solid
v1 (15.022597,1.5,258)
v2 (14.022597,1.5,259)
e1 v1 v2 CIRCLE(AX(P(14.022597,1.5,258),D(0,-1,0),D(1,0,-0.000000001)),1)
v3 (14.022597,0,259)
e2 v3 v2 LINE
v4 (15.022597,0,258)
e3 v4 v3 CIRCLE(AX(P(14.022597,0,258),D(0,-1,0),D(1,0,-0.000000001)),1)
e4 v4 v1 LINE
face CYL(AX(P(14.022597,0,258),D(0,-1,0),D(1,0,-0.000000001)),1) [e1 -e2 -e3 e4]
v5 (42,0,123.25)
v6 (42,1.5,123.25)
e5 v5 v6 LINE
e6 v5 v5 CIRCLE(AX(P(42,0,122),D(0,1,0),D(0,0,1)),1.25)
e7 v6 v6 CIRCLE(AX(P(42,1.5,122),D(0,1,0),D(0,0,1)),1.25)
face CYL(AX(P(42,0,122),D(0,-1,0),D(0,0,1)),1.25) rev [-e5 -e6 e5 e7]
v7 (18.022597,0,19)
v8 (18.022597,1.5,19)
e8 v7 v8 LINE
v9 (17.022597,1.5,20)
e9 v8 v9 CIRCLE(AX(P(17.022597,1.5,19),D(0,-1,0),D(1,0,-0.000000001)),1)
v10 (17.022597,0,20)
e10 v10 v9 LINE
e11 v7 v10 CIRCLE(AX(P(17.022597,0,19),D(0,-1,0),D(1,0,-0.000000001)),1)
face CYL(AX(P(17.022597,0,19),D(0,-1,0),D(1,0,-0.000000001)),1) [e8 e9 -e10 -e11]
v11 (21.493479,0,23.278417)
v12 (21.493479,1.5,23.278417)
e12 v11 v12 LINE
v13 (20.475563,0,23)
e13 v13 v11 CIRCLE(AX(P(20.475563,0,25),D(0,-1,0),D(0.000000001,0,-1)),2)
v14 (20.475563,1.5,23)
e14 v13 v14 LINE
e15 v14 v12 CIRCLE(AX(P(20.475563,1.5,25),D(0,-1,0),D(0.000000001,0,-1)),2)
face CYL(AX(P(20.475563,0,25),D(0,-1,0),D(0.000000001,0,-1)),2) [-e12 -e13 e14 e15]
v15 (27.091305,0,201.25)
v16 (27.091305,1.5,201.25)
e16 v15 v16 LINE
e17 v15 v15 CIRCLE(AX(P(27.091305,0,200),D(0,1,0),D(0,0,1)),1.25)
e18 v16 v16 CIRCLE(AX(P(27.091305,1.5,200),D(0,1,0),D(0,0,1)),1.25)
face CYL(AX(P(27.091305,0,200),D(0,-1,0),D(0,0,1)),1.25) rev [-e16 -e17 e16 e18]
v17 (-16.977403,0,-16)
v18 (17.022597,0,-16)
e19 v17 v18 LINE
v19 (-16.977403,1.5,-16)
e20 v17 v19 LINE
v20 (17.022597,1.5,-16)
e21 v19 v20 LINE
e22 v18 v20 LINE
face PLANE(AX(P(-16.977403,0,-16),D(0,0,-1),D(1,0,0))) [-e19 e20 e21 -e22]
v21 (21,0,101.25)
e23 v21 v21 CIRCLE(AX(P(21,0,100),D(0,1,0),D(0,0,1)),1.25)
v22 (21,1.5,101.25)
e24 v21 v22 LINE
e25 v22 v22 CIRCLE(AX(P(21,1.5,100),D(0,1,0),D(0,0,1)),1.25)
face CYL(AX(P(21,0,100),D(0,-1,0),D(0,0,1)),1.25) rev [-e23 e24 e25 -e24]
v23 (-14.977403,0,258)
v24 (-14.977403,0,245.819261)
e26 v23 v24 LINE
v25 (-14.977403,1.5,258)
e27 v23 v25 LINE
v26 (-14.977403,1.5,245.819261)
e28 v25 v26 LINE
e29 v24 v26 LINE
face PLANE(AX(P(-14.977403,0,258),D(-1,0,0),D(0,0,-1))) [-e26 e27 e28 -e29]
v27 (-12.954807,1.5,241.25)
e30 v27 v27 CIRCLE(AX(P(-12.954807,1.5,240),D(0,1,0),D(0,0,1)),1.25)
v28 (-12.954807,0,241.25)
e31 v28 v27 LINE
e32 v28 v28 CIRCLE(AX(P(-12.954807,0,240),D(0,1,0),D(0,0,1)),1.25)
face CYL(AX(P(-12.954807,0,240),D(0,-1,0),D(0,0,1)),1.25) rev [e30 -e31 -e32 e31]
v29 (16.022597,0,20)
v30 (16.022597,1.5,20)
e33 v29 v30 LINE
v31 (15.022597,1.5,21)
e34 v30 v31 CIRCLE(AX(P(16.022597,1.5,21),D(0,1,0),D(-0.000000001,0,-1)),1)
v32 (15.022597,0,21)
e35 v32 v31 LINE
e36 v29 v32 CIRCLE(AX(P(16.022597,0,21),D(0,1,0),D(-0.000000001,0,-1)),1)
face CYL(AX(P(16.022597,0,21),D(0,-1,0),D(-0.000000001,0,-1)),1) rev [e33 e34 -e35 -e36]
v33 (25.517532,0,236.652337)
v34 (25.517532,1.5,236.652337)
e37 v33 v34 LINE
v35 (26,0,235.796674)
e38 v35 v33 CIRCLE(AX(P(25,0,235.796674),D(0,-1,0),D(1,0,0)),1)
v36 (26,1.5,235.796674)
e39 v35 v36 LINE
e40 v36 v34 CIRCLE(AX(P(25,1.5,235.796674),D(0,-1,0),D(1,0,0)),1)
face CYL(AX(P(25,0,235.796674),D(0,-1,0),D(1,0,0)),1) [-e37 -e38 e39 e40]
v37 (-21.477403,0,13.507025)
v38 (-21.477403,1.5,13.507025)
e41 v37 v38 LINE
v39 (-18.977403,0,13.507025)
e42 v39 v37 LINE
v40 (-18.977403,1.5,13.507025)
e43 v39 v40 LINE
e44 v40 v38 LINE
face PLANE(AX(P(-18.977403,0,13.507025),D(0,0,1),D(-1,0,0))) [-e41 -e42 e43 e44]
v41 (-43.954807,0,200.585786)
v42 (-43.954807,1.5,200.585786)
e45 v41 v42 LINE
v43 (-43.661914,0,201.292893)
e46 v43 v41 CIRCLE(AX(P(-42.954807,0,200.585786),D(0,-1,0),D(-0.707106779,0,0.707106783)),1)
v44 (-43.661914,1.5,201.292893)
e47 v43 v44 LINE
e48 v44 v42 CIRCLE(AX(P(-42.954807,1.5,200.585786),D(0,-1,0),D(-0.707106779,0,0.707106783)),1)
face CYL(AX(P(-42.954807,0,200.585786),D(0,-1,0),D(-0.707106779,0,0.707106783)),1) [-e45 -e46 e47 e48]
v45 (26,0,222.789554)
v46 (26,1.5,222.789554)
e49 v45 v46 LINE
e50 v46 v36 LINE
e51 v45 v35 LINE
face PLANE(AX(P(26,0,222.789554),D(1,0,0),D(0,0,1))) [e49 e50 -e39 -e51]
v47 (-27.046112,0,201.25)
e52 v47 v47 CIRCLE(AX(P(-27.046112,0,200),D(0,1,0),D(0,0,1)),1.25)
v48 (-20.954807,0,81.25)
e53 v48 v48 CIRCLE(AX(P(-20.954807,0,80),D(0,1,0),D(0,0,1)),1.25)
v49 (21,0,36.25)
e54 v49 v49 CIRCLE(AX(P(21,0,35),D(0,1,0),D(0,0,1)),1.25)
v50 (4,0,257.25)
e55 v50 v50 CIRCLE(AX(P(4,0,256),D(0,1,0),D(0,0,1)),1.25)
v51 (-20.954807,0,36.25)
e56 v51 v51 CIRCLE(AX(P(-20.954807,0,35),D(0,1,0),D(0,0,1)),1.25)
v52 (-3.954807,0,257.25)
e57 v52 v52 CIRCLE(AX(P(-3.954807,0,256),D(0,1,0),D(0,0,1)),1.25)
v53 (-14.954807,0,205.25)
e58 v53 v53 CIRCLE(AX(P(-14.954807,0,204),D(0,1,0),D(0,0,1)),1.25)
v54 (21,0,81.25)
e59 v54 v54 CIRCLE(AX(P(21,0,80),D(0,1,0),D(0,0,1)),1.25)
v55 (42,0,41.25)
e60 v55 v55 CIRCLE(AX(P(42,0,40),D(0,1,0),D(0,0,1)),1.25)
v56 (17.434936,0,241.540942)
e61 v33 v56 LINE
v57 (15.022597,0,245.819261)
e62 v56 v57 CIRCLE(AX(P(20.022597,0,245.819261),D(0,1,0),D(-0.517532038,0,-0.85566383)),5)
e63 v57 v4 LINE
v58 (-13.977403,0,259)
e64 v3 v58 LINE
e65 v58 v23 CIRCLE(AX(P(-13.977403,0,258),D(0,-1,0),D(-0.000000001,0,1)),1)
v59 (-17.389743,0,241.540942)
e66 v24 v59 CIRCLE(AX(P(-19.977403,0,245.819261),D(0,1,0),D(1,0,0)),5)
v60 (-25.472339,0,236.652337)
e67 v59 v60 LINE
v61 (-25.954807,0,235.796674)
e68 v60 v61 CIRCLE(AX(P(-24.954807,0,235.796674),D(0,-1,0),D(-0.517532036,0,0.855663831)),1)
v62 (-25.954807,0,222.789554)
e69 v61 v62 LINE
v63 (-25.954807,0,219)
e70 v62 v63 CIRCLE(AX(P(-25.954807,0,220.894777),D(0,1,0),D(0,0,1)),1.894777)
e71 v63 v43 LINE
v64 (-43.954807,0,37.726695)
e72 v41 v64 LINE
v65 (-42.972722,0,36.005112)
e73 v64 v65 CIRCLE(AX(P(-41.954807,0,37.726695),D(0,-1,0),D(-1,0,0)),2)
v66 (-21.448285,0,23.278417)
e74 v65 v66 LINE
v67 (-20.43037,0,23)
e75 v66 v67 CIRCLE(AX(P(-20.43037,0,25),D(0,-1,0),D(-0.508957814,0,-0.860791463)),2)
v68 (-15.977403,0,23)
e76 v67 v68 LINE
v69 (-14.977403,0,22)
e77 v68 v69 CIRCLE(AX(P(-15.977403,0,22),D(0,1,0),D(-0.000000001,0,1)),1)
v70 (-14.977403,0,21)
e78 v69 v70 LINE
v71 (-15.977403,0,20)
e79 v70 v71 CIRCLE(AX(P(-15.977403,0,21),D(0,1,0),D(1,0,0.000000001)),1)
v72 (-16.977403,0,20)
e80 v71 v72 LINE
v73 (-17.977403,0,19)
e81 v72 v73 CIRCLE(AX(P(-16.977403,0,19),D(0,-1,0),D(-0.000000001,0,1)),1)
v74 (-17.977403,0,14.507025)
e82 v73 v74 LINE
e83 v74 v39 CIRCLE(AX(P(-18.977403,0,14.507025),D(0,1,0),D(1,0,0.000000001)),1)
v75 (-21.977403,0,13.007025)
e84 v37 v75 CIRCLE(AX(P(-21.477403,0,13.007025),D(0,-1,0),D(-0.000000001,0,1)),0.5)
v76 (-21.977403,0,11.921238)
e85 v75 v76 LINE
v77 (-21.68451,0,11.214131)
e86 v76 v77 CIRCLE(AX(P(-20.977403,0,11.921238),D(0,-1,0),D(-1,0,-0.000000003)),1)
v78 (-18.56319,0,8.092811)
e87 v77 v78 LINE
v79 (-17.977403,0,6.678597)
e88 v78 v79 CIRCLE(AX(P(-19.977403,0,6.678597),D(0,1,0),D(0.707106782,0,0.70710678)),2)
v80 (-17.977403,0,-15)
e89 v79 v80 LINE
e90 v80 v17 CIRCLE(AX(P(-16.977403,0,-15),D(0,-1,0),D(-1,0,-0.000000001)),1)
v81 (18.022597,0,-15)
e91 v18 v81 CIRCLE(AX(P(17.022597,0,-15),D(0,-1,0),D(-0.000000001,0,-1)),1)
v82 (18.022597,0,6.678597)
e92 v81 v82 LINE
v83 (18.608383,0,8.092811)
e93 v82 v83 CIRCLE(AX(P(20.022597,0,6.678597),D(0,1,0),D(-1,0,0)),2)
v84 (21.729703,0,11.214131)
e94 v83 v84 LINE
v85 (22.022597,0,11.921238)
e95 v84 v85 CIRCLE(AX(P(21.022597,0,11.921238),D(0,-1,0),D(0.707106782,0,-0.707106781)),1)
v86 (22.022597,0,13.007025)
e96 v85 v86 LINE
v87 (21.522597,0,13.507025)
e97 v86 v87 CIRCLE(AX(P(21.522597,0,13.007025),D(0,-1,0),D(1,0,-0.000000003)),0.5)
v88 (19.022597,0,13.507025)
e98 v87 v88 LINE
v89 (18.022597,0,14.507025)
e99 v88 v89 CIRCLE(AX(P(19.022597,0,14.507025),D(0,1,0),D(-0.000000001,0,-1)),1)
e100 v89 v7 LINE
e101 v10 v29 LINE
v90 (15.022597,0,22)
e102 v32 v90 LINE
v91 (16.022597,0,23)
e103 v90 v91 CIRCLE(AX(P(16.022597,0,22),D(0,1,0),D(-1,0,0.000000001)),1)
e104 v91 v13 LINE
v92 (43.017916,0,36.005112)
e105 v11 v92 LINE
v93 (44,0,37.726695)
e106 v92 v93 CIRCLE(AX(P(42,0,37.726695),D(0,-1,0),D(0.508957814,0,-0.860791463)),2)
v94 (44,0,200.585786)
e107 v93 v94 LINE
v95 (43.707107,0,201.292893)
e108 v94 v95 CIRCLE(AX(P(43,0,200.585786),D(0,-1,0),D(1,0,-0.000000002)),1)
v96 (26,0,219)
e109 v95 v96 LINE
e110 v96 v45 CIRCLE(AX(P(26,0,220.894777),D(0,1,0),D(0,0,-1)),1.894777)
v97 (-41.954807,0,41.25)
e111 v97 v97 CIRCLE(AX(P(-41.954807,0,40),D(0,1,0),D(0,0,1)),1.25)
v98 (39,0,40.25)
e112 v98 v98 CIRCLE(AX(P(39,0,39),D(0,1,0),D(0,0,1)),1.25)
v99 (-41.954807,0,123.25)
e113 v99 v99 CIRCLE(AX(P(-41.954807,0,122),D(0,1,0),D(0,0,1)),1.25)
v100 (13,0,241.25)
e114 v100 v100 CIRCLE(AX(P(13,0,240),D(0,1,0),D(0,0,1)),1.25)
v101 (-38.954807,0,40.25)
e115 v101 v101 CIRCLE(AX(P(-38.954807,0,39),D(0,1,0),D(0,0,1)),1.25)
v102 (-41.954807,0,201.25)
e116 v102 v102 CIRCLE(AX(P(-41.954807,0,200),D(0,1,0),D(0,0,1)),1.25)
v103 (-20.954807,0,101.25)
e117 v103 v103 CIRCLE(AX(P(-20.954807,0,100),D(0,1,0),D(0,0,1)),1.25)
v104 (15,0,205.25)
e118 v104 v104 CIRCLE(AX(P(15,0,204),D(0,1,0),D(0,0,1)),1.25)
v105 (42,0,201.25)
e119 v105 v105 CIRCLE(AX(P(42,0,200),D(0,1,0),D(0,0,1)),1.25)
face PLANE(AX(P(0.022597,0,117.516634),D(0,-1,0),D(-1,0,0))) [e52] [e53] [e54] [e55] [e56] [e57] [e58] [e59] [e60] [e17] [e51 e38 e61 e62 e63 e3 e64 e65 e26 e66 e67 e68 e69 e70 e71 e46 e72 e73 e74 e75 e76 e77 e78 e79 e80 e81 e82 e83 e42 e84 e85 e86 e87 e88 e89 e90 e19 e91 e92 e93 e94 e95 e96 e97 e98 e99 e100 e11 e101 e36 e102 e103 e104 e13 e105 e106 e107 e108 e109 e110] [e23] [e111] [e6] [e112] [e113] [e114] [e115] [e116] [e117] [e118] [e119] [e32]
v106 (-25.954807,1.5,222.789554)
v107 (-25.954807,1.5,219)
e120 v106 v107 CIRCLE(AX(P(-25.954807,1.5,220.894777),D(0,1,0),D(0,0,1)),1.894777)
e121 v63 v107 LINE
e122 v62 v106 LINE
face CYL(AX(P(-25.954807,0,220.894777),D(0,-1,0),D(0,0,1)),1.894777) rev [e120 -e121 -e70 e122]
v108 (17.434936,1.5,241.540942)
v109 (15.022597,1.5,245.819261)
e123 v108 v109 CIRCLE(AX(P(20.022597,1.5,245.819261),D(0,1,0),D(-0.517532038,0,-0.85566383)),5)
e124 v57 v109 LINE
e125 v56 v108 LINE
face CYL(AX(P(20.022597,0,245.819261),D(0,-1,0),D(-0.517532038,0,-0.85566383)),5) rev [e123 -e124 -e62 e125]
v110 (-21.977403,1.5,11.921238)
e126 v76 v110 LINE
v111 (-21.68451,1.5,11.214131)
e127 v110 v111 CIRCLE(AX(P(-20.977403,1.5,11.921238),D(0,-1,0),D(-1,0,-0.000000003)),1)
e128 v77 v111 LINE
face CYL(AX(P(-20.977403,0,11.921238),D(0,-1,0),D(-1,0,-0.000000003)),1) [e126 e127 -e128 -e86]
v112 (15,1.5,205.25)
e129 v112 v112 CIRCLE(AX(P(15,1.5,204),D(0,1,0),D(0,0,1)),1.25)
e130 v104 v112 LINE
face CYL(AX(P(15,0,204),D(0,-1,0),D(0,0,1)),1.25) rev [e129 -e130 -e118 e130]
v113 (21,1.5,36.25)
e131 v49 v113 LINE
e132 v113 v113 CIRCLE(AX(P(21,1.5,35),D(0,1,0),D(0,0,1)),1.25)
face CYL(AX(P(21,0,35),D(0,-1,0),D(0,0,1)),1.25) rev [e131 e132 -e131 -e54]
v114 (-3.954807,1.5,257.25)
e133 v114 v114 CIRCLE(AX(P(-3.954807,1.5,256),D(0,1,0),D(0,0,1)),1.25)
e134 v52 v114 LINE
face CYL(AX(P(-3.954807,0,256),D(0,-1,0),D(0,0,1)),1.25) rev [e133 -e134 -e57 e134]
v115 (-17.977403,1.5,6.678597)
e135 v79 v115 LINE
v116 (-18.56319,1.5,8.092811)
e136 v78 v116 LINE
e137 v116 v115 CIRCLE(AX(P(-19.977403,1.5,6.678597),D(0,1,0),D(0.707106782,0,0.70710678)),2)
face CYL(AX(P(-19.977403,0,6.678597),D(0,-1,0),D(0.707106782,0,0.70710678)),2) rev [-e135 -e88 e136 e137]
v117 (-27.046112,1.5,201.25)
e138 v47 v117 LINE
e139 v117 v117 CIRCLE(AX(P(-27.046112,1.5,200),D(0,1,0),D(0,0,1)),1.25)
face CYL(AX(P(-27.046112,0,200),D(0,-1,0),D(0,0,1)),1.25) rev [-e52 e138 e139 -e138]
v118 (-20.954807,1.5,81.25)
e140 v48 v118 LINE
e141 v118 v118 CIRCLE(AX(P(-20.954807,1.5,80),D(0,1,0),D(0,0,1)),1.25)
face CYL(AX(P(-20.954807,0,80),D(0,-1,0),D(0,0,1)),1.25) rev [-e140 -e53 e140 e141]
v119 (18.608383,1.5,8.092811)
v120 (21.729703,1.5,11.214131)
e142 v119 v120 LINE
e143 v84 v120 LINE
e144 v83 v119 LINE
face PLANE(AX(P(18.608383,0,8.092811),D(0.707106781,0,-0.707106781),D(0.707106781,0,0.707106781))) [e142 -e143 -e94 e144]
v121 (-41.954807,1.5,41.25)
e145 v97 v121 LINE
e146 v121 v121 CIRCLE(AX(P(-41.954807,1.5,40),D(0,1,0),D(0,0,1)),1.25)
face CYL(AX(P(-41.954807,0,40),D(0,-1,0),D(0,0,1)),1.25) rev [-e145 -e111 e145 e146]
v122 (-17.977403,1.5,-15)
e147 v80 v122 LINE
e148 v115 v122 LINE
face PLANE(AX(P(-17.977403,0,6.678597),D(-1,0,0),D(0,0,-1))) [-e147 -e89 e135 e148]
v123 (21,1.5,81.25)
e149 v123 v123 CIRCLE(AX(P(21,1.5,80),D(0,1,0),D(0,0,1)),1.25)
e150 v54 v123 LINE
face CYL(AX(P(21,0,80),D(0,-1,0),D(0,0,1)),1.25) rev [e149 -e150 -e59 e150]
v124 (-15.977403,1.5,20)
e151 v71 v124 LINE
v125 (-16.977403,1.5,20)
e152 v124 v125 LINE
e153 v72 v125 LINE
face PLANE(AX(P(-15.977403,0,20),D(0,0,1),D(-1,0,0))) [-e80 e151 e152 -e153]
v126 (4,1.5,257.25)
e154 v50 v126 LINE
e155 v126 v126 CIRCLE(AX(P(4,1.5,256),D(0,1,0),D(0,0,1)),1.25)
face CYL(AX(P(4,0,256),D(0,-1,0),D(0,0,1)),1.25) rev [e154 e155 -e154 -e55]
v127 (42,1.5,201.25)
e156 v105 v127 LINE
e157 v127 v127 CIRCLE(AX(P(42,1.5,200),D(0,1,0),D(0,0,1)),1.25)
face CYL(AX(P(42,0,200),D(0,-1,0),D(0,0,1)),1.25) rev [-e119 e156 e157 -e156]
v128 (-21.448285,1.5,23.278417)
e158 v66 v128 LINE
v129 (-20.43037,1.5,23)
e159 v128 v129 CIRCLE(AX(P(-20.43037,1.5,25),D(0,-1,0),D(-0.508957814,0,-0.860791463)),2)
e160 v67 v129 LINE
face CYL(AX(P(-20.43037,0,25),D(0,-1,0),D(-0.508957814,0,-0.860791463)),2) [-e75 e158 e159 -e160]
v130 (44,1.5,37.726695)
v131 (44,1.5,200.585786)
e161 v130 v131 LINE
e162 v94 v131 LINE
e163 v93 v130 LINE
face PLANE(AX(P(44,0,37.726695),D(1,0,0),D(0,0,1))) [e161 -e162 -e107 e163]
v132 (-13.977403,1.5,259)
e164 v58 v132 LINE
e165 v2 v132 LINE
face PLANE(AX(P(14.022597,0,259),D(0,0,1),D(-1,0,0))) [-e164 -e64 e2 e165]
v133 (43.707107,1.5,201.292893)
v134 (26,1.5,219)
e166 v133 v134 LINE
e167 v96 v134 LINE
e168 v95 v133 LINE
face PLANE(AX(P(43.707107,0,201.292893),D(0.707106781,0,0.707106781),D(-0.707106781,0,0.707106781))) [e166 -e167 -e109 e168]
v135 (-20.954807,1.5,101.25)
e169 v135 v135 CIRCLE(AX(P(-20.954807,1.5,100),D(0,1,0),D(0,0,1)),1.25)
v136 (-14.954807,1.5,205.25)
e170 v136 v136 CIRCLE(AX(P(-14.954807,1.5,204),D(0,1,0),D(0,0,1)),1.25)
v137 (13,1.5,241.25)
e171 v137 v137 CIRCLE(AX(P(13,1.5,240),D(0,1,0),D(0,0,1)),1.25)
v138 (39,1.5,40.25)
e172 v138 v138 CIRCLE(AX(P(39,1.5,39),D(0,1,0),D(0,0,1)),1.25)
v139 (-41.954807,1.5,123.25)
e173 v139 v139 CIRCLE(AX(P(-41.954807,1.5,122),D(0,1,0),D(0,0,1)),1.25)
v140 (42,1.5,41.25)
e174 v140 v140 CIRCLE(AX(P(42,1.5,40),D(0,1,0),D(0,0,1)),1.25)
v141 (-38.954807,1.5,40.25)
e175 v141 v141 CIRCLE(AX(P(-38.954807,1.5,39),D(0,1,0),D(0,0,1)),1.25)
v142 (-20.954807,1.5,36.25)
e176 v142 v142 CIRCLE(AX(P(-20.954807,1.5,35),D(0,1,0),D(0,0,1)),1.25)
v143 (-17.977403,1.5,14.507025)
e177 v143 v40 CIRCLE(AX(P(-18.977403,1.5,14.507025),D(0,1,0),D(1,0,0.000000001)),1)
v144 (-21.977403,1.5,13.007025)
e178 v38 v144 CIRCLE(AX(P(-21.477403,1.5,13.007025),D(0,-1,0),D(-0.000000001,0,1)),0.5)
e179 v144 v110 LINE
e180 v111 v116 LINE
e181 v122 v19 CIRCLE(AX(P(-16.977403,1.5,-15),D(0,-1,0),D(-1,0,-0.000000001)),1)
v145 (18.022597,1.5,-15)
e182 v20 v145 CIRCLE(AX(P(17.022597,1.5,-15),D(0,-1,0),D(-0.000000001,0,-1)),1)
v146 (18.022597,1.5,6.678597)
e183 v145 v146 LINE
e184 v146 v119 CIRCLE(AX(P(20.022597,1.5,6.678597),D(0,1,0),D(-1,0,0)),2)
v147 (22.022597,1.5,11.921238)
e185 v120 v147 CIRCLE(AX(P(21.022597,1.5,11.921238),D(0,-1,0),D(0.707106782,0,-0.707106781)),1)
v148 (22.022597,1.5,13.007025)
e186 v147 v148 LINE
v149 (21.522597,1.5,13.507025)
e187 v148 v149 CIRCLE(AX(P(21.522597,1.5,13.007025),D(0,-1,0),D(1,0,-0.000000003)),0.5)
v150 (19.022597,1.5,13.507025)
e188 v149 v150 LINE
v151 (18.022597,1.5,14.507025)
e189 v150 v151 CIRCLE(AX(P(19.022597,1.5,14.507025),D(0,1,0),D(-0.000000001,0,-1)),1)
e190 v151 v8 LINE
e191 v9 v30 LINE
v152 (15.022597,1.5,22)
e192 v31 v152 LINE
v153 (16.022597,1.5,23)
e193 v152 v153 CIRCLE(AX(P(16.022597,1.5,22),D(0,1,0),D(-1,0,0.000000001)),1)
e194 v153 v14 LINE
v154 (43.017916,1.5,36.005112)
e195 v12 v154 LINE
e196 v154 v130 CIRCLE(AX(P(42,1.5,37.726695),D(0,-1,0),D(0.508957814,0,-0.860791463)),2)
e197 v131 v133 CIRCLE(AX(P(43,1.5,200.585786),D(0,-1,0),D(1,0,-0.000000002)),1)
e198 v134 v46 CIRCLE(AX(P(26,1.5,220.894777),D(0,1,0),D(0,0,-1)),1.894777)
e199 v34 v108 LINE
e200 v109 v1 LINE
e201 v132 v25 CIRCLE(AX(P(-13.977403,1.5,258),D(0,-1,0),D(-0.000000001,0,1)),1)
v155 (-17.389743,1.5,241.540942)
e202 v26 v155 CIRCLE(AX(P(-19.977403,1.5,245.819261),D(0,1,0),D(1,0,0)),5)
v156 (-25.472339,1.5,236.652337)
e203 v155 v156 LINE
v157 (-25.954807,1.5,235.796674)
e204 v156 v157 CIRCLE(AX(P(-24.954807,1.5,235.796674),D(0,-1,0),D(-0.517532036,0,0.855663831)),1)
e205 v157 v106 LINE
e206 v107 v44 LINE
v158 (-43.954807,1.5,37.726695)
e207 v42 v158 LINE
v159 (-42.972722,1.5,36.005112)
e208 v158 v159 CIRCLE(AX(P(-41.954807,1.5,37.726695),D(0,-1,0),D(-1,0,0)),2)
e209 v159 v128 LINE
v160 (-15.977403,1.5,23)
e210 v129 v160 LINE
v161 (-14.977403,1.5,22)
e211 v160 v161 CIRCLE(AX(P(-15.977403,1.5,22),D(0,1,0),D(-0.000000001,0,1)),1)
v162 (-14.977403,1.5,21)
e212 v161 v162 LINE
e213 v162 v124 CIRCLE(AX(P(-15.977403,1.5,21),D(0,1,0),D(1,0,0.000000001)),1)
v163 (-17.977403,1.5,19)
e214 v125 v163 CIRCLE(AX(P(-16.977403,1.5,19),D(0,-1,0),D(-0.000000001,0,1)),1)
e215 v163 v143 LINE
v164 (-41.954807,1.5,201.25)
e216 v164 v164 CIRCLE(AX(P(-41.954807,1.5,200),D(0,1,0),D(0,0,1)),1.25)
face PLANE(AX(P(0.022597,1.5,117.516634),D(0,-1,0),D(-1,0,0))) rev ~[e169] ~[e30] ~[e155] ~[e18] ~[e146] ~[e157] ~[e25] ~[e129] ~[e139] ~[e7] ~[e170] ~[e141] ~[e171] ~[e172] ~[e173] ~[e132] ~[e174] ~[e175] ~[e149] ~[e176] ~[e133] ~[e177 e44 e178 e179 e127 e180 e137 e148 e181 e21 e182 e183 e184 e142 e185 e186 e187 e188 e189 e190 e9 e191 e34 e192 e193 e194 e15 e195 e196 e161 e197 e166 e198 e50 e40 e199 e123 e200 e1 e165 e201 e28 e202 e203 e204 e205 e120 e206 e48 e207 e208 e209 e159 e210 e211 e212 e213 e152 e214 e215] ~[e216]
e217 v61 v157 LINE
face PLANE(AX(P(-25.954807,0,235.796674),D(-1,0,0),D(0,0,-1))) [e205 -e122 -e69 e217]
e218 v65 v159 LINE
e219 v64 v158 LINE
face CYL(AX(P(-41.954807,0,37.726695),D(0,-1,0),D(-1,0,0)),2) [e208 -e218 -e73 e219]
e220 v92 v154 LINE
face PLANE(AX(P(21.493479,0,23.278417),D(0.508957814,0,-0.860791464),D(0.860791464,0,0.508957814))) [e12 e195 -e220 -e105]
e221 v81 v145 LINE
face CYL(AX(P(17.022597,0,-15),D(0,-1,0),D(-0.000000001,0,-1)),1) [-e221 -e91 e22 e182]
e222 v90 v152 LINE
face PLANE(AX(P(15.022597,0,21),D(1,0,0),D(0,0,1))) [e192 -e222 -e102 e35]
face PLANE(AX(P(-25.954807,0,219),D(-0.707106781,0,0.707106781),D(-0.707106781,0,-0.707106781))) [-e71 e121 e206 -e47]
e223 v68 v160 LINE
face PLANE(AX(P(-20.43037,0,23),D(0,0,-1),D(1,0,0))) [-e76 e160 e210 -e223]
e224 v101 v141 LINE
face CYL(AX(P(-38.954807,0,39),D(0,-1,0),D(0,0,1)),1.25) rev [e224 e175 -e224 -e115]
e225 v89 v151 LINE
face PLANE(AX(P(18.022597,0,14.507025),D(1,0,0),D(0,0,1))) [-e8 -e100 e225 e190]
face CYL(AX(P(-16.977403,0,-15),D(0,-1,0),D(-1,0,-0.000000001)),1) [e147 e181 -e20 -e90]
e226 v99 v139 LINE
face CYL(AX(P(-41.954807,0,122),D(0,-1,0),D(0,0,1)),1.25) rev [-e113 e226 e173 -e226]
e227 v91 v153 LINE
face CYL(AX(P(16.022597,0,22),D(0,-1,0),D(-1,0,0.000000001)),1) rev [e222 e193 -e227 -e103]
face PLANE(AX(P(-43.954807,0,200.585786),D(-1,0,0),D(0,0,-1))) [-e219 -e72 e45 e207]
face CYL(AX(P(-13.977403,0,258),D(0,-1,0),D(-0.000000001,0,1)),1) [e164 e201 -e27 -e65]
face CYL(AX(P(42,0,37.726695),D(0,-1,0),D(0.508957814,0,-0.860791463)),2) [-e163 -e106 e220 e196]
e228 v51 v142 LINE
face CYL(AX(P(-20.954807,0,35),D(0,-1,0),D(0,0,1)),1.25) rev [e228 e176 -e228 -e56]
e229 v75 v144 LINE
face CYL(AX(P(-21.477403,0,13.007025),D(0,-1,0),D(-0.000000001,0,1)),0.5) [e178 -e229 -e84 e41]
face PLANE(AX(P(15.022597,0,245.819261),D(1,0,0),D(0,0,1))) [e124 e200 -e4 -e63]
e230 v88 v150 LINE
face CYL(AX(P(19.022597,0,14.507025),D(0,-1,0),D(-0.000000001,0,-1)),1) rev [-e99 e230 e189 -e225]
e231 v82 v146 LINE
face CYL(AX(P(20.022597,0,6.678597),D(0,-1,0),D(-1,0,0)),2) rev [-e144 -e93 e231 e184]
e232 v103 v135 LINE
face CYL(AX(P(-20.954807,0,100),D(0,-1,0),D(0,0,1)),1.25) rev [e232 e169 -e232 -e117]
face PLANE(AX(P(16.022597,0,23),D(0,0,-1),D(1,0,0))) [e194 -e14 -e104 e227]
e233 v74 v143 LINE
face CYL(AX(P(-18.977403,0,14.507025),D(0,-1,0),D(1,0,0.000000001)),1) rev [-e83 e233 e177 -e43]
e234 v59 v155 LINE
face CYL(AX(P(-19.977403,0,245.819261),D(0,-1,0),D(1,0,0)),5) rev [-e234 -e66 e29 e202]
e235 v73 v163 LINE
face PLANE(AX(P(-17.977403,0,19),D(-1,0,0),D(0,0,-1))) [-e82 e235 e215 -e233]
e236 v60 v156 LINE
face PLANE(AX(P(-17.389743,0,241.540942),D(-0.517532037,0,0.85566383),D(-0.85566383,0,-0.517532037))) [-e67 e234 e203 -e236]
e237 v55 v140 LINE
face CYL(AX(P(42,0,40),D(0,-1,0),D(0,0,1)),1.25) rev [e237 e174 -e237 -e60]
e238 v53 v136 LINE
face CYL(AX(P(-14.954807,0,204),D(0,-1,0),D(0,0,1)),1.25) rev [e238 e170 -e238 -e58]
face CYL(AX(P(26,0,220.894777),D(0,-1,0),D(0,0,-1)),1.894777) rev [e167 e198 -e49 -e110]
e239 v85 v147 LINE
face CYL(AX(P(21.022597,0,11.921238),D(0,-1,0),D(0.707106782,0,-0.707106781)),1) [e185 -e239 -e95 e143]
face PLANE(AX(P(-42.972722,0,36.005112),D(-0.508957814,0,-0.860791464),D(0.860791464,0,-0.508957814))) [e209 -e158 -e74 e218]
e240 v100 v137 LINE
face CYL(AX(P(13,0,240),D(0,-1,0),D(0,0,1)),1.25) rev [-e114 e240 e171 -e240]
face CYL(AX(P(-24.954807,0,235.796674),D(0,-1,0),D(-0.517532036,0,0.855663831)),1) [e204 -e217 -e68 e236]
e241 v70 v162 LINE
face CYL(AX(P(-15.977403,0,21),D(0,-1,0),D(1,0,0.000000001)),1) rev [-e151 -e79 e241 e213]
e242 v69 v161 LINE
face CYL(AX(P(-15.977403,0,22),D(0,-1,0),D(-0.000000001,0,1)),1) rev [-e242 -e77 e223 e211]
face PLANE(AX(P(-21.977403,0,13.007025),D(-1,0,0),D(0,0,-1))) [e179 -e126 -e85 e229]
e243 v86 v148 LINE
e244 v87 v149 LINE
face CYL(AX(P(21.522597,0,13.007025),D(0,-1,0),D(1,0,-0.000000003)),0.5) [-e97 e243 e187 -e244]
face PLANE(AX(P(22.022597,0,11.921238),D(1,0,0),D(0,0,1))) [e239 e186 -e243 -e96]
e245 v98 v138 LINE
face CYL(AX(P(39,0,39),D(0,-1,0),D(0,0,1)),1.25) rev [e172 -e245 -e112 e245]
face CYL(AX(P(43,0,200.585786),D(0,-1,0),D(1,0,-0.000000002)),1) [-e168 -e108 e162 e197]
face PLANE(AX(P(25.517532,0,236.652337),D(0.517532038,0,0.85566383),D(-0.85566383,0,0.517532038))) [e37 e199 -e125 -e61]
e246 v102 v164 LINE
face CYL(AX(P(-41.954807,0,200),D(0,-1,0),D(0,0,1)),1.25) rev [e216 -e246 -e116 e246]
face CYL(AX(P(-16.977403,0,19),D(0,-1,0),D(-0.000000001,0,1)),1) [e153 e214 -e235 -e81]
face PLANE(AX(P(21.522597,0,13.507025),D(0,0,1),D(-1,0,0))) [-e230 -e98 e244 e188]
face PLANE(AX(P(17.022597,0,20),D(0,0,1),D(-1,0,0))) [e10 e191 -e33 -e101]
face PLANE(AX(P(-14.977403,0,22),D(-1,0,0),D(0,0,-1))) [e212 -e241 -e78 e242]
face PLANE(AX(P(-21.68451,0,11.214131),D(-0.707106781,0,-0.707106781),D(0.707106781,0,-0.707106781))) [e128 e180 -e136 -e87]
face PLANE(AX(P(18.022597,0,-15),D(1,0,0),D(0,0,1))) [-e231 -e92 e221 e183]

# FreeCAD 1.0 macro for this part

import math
import FreeCAD as App
import Part
import Sketcher

doc = App.newDocument("Part")
params = doc.addObject("Spreadsheet::Sheet", "Params")
for row, (alias, value) in enumerate([
    ("sketch1_radius", "2 mm"),
    ("sketch1_radius2", "1 mm"),
    ("sketch1_radius3", "5 mm"),
    ("sketch1_diameter", "2.5 mm"),
    ("sketch1_radius4", "0.5 mm"),
    ("pad1_length", "1.5 mm"),
], start=1):
    params.set(f"A{row}", alias)
    params.set(f"B{row}", "=" + value)
    params.setAlias(f"B{row}", alias)

body = doc.addObject("PartDesign::Body", "Body")

# Sketch on XZ plane
sketch1 = body.newObject("Sketcher::SketchObject", "Sketch")
sketch1.AttachmentSupport = (doc.getObject("XZ_Plane"), [""])
sketch1.MapMode = "FlatFace"
sketch1.addGeometry(Part.LineSegment(App.Vector(44, 200.59, 0), App.Vector(44, 37.73, 0)), False)
sketch1.addGeometry(Part.ArcOfCircle(Part.Circle(App.Vector(42, 37.73, 0), App.Vector(0, 0, 1), 2), math.radians(-59), math.radians(0)), False)
sketch1.addGeometry(Part.LineSegment(App.Vector(43.02, 36.01, 0), App.Vector(21.49, 23.28, 0)), False)
sketch1.addGeometry(Part.ArcOfCircle(Part.Circle(App.Vector(20.48, 25, 0), App.Vector(0, 0, 1), 2), math.radians(-90), math.radians(-59)), False)
sketch1.addGeometry(Part.LineSegment(App.Vector(20.48, 23, 0), App.Vector(16.02, 23, 0)), False)
sketch1.addGeometry(Part.ArcOfCircle(Part.Circle(App.Vector(16.02, 22, 0), App.Vector(0, 0, 1), 1), math.radians(90), math.radians(180)), False)
sketch1.addGeometry(Part.LineSegment(App.Vector(15.02, 22, 0), App.Vector(15.02, 21, 0)), False)
sketch1.addGeometry(Part.ArcOfCircle(Part.Circle(App.Vector(16.02, 21, 0), App.Vector(0, 0, 1), 1), math.radians(-180), math.radians(-90)), False)
sketch1.addGeometry(Part.LineSegment(App.Vector(16.02, 20, 0), App.Vector(17.02, 20, 0)), False)
sketch1.addGeometry(Part.ArcOfCircle(Part.Circle(App.Vector(17.02, 19, 0), App.Vector(0, 0, 1), 1), math.radians(0), math.radians(90)), False)
sketch1.addGeometry(Part.LineSegment(App.Vector(18.02, 19, 0), App.Vector(18.02, 14.51, 0)), False)
sketch1.addGeometry(Part.ArcOfCircle(Part.Circle(App.Vector(19.02, 14.51, 0), App.Vector(0, 0, 1), 1), math.radians(-180), math.radians(-90)), False)
sketch1.addGeometry(Part.LineSegment(App.Vector(19.02, 13.51, 0), App.Vector(21.52, 13.51, 0)), False)
sketch1.addGeometry(Part.ArcOfCircle(Part.Circle(App.Vector(21.52, 13.01, 0), App.Vector(0, 0, 1), 0.5), math.radians(0), math.radians(90)), False)
sketch1.addGeometry(Part.LineSegment(App.Vector(22.02, 13.01, 0), App.Vector(22.02, 11.92, 0)), False)
sketch1.addGeometry(Part.ArcOfCircle(Part.Circle(App.Vector(21.02, 11.92, 0), App.Vector(0, 0, 1), 1), math.radians(-45), math.radians(0)), False)
sketch1.addGeometry(Part.LineSegment(App.Vector(21.73, 11.21, 0), App.Vector(18.61, 8.09, 0)), False)
sketch1.addGeometry(Part.ArcOfCircle(Part.Circle(App.Vector(20.02, 6.68, 0), App.Vector(0, 0, 1), 2), math.radians(135), math.radians(180)), False)
sketch1.addGeometry(Part.LineSegment(App.Vector(18.02, 6.68, 0), App.Vector(18.02, -15, 0)), False)
sketch1.addGeometry(Part.ArcOfCircle(Part.Circle(App.Vector(17.02, -15, 0), App.Vector(0, 0, 1), 1), math.radians(-90), math.radians(0)), False)
sketch1.addGeometry(Part.LineSegment(App.Vector(17.02, -16, 0), App.Vector(-16.98, -16, 0)), False)
sketch1.addGeometry(Part.ArcOfCircle(Part.Circle(App.Vector(-16.98, -15, 0), App.Vector(0, 0, 1), 1), math.radians(-180), math.radians(-90)), False)
sketch1.addGeometry(Part.LineSegment(App.Vector(-17.98, -15, 0), App.Vector(-17.98, 6.68, 0)), False)
sketch1.addGeometry(Part.ArcOfCircle(Part.Circle(App.Vector(-19.98, 6.68, 0), App.Vector(0, 0, 1), 2), math.radians(0), math.radians(45)), False)
sketch1.addGeometry(Part.LineSegment(App.Vector(-18.56, 8.09, 0), App.Vector(-21.68, 11.21, 0)), False)
sketch1.addGeometry(Part.ArcOfCircle(Part.Circle(App.Vector(-20.98, 11.92, 0), App.Vector(0, 0, 1), 1), math.radians(-180), math.radians(-135)), False)
sketch1.addGeometry(Part.LineSegment(App.Vector(-21.98, 11.92, 0), App.Vector(-21.98, 13.01, 0)), False)
sketch1.addGeometry(Part.ArcOfCircle(Part.Circle(App.Vector(-21.48, 13.01, 0), App.Vector(0, 0, 1), 0.5), math.radians(90), math.radians(180)), False)
sketch1.addGeometry(Part.LineSegment(App.Vector(-21.48, 13.51, 0), App.Vector(-18.98, 13.51, 0)), False)
sketch1.addGeometry(Part.ArcOfCircle(Part.Circle(App.Vector(-18.98, 14.51, 0), App.Vector(0, 0, 1), 1), math.radians(-90), math.radians(0)), False)
sketch1.addGeometry(Part.LineSegment(App.Vector(-17.98, 14.51, 0), App.Vector(-17.98, 19, 0)), False)
sketch1.addGeometry(Part.ArcOfCircle(Part.Circle(App.Vector(-16.98, 19, 0), App.Vector(0, 0, 1), 1), math.radians(90), math.radians(180)), False)
sketch1.addGeometry(Part.LineSegment(App.Vector(-16.98, 20, 0), App.Vector(-15.98, 20, 0)), False)
sketch1.addGeometry(Part.ArcOfCircle(Part.Circle(App.Vector(-15.98, 21, 0), App.Vector(0, 0, 1), 1), math.radians(-90), math.radians(0)), False)
sketch1.addGeometry(Part.LineSegment(App.Vector(-14.98, 21, 0), App.Vector(-14.98, 22, 0)), False)
sketch1.addGeometry(Part.ArcOfCircle(Part.Circle(App.Vector(-15.98, 22, 0), App.Vector(0, 0, 1), 1), math.radians(0), math.radians(90)), False)
sketch1.addGeometry(Part.LineSegment(App.Vector(-15.98, 23, 0), App.Vector(-20.43, 23, 0)), False)
sketch1.addGeometry(Part.ArcOfCircle(Part.Circle(App.Vector(-20.43, 25, 0), App.Vector(0, 0, 1), 2), math.radians(-121), math.radians(-90)), False)
sketch1.addGeometry(Part.LineSegment(App.Vector(-21.45, 23.28, 0), App.Vector(-42.97, 36.01, 0)), False)
sketch1.addGeometry(Part.ArcOfCircle(Part.Circle(App.Vector(-41.95, 37.73, 0), App.Vector(0, 0, 1), 2), math.radians(-180), math.radians(-121)), False)
sketch1.addGeometry(Part.LineSegment(App.Vector(-43.95, 37.73, 0), App.Vector(-43.95, 200.59, 0)), False)
sketch1.addGeometry(Part.ArcOfCircle(Part.Circle(App.Vector(-42.95, 200.59, 0), App.Vector(0, 0, 1), 1), math.radians(135), math.radians(180)), False)
sketch1.addGeometry(Part.LineSegment(App.Vector(-43.66, 201.29, 0), App.Vector(-25.95, 219, 0)), False)
sketch1.addGeometry(Part.ArcOfCircle(Part.Circle(App.Vector(-25.95, 220.89, 0), App.Vector(0, 0, 1), 1.89), math.radians(-90), math.radians(90)), False)
sketch1.addGeometry(Part.LineSegment(App.Vector(-25.95, 222.79, 0), App.Vector(-25.95, 235.8, 0)), False)
sketch1.addGeometry(Part.ArcOfCircle(Part.Circle(App.Vector(-24.95, 235.8, 0), App.Vector(0, 0, 1), 1), math.radians(121), math.radians(180)), False)
sketch1.addGeometry(Part.LineSegment(App.Vector(-25.47, 236.65, 0), App.Vector(-17.39, 241.54, 0)), False)
sketch1.addGeometry(Part.ArcOfCircle(Part.Circle(App.Vector(-19.98, 245.82, 0), App.Vector(0, 0, 1), 5), math.radians(-59), math.radians(0)), False)
sketch1.addGeometry(Part.LineSegment(App.Vector(-14.98, 245.82, 0), App.Vector(-14.98, 258, 0)), False)
sketch1.addGeometry(Part.ArcOfCircle(Part.Circle(App.Vector(-13.98, 258, 0), App.Vector(0, 0, 1), 1), math.radians(90), math.radians(180)), False)
sketch1.addGeometry(Part.LineSegment(App.Vector(-13.98, 259, 0), App.Vector(14.02, 259, 0)), False)
sketch1.addGeometry(Part.ArcOfCircle(Part.Circle(App.Vector(14.02, 258, 0), App.Vector(0, 0, 1), 1), math.radians(0), math.radians(90)), False)
sketch1.addGeometry(Part.LineSegment(App.Vector(15.02, 258, 0), App.Vector(15.02, 245.82, 0)), False)
sketch1.addGeometry(Part.ArcOfCircle(Part.Circle(App.Vector(20.02, 245.82, 0), App.Vector(0, 0, 1), 5), math.radians(-180), math.radians(-121)), False)
sketch1.addGeometry(Part.LineSegment(App.Vector(17.43, 241.54, 0), App.Vector(25.52, 236.65, 0)), False)
sketch1.addGeometry(Part.ArcOfCircle(Part.Circle(App.Vector(25, 235.8, 0), App.Vector(0, 0, 1), 1), math.radians(0), math.radians(59)), False)
sketch1.addGeometry(Part.LineSegment(App.Vector(26, 235.8, 0), App.Vector(26, 222.79, 0)), False)
sketch1.addGeometry(Part.ArcOfCircle(Part.Circle(App.Vector(26, 220.89, 0), App.Vector(0, 0, 1), 1.89), math.radians(90), math.radians(270)), False)
sketch1.addGeometry(Part.LineSegment(App.Vector(26, 219, 0), App.Vector(43.71, 201.29, 0)), False)
sketch1.addGeometry(Part.ArcOfCircle(Part.Circle(App.Vector(43, 200.59, 0), App.Vector(0, 0, 1), 1), math.radians(0), math.radians(45)), False)
sketch1.addGeometry(Part.Circle(App.Vector(13, 240, 0), App.Vector(0, 0, 1), 1.25), False)
sketch1.addGeometry(Part.Circle(App.Vector(4, 256, 0), App.Vector(0, 0, 1), 1.25), False)
sketch1.addGeometry(Part.Circle(App.Vector(15, 204, 0), App.Vector(0, 0, 1), 1.25), False)
sketch1.addGeometry(Part.Circle(App.Vector(42, 200, 0), App.Vector(0, 0, 1), 1.25), False)
sketch1.addGeometry(Part.Circle(App.Vector(27.09, 200, 0), App.Vector(0, 0, 1), 1.25), False)
sketch1.addGeometry(Part.Circle(App.Vector(-3.95, 256, 0), App.Vector(0, 0, 1), 1.25), False)
sketch1.addGeometry(Part.Circle(App.Vector(-12.95, 240, 0), App.Vector(0, 0, 1), 1.25), False)
sketch1.addGeometry(Part.Circle(App.Vector(-14.95, 204, 0), App.Vector(0, 0, 1), 1.25), False)
sketch1.addGeometry(Part.Circle(App.Vector(-27.05, 200, 0), App.Vector(0, 0, 1), 1.25), False)
sketch1.addGeometry(Part.Circle(App.Vector(-41.95, 200, 0), App.Vector(0, 0, 1), 1.25), False)
sketch1.addGeometry(Part.Circle(App.Vector(42, 122, 0), App.Vector(0, 0, 1), 1.25), False)
sketch1.addGeometry(Part.Circle(App.Vector(21, 100, 0), App.Vector(0, 0, 1), 1.25), False)
sketch1.addGeometry(Part.Circle(App.Vector(42, 40, 0), App.Vector(0, 0, 1), 1.25), False)
sketch1.addGeometry(Part.Circle(App.Vector(39, 39, 0), App.Vector(0, 0, 1), 1.25), False)
sketch1.addGeometry(Part.Circle(App.Vector(21, 80, 0), App.Vector(0, 0, 1), 1.25), False)
sketch1.addGeometry(Part.Circle(App.Vector(21, 35, 0), App.Vector(0, 0, 1), 1.25), False)
sketch1.addGeometry(Part.Circle(App.Vector(-20.95, 100, 0), App.Vector(0, 0, 1), 1.25), False)
sketch1.addGeometry(Part.Circle(App.Vector(-41.95, 122, 0), App.Vector(0, 0, 1), 1.25), False)
sketch1.addGeometry(Part.Circle(App.Vector(-20.95, 80, 0), App.Vector(0, 0, 1), 1.25), False)
sketch1.addGeometry(Part.Circle(App.Vector(-20.95, 35, 0), App.Vector(0, 0, 1), 1.25), False)
sketch1.addGeometry(Part.Circle(App.Vector(-38.95, 39, 0), App.Vector(0, 0, 1), 1.25), False)
sketch1.addGeometry(Part.Circle(App.Vector(-41.95, 40, 0), App.Vector(0, 0, 1), 1.25), False)
sketch1.addConstraint(Sketcher.Constraint("Tangent", 0, 2, 1, 2))
sketch1.addConstraint(Sketcher.Constraint("Tangent", 1, 1, 2, 1))
sketch1.addConstraint(Sketcher.Constraint("Tangent", 2, 2, 3, 2))
sketch1.addConstraint(Sketcher.Constraint("Tangent", 3, 1, 4, 1))
sketch1.addConstraint(Sketcher.Constraint("Tangent", 4, 2, 5, 1))
sketch1.addConstraint(Sketcher.Constraint("Tangent", 5, 2, 6, 1))
sketch1.addConstraint(Sketcher.Constraint("Tangent", 6, 2, 7, 1))
sketch1.addConstraint(Sketcher.Constraint("Tangent", 7, 2, 8, 1))
sketch1.addConstraint(Sketcher.Constraint("Tangent", 8, 2, 9, 2))
sketch1.addConstraint(Sketcher.Constraint("Tangent", 9, 1, 10, 1))
sketch1.addConstraint(Sketcher.Constraint("Tangent", 10, 2, 11, 1))
sketch1.addConstraint(Sketcher.Constraint("Tangent", 11, 2, 12, 1))
sketch1.addConstraint(Sketcher.Constraint("Tangent", 12, 2, 13, 2))
sketch1.addConstraint(Sketcher.Constraint("Tangent", 13, 1, 14, 1))
sketch1.addConstraint(Sketcher.Constraint("Tangent", 14, 2, 15, 2))
sketch1.addConstraint(Sketcher.Constraint("Tangent", 15, 1, 16, 1))
sketch1.addConstraint(Sketcher.Constraint("Tangent", 16, 2, 17, 1))
sketch1.addConstraint(Sketcher.Constraint("Tangent", 17, 2, 18, 1))
sketch1.addConstraint(Sketcher.Constraint("Tangent", 18, 2, 19, 2))
sketch1.addConstraint(Sketcher.Constraint("Tangent", 19, 1, 20, 1))
sketch1.addConstraint(Sketcher.Constraint("Tangent", 20, 2, 21, 2))
sketch1.addConstraint(Sketcher.Constraint("Tangent", 21, 1, 22, 1))
sketch1.addConstraint(Sketcher.Constraint("Tangent", 22, 2, 23, 1))
sketch1.addConstraint(Sketcher.Constraint("Tangent", 23, 2, 24, 1))
sketch1.addConstraint(Sketcher.Constraint("Tangent", 24, 2, 25, 2))
sketch1.addConstraint(Sketcher.Constraint("Tangent", 25, 1, 26, 1))
sketch1.addConstraint(Sketcher.Constraint("Tangent", 26, 2, 27, 2))
sketch1.addConstraint(Sketcher.Constraint("Tangent", 27, 1, 28, 1))
sketch1.addConstraint(Sketcher.Constraint("Tangent", 28, 2, 29, 1))
sketch1.addConstraint(Sketcher.Constraint("Tangent", 29, 2, 30, 1))
sketch1.addConstraint(Sketcher.Constraint("Tangent", 30, 2, 31, 2))
sketch1.addConstraint(Sketcher.Constraint("Tangent", 31, 1, 32, 1))
sketch1.addConstraint(Sketcher.Constraint("Tangent", 32, 2, 33, 1))
sketch1.addConstraint(Sketcher.Constraint("Tangent", 33, 2, 34, 1))
sketch1.addConstraint(Sketcher.Constraint("Tangent", 34, 2, 35, 1))
sketch1.addConstraint(Sketcher.Constraint("Tangent", 35, 2, 36, 1))
sketch1.addConstraint(Sketcher.Constraint("Tangent", 36, 2, 37, 2))
sketch1.addConstraint(Sketcher.Constraint("Tangent", 37, 1, 38, 1))
sketch1.addConstraint(Sketcher.Constraint("Tangent", 38, 2, 39, 2))
sketch1.addConstraint(Sketcher.Constraint("Tangent", 39, 1, 40, 1))
sketch1.addConstraint(Sketcher.Constraint("Tangent", 40, 2, 41, 2))
sketch1.addConstraint(Sketcher.Constraint("Tangent", 41, 1, 42, 1))
sketch1.addConstraint(Sketcher.Constraint("Coincident", 42, 2, 43, 1))
sketch1.addConstraint(Sketcher.Constraint("Coincident", 43, 2, 44, 1))
sketch1.addConstraint(Sketcher.Constraint("Tangent", 44, 2, 45, 2))
sketch1.addConstraint(Sketcher.Constraint("Tangent", 45, 1, 46, 1))
sketch1.addConstraint(Sketcher.Constraint("Tangent", 46, 2, 47, 1))
sketch1.addConstraint(Sketcher.Constraint("Tangent", 47, 2, 48, 1))
sketch1.addConstraint(Sketcher.Constraint("Tangent", 48, 2, 49, 2))
sketch1.addConstraint(Sketcher.Constraint("Tangent", 49, 1, 50, 1))
sketch1.addConstraint(Sketcher.Constraint("Tangent", 50, 2, 51, 2))
sketch1.addConstraint(Sketcher.Constraint("Tangent", 51, 1, 52, 1))
sketch1.addConstraint(Sketcher.Constraint("Tangent", 52, 2, 53, 1))
sketch1.addConstraint(Sketcher.Constraint("Tangent", 53, 2, 54, 1))
sketch1.addConstraint(Sketcher.Constraint("Tangent", 54, 2, 55, 2))
sketch1.addConstraint(Sketcher.Constraint("Tangent", 55, 1, 56, 1))
sketch1.addConstraint(Sketcher.Constraint("Coincident", 56, 2, 57, 1))
sketch1.addConstraint(Sketcher.Constraint("Coincident", 57, 2, 58, 1))
sketch1.addConstraint(Sketcher.Constraint("Tangent", 58, 2, 59, 2))
sketch1.addConstraint(Sketcher.Constraint("Tangent", 59, 1, 0, 1))
sketch1.addConstraint(Sketcher.Constraint("Vertical", 0))
sketch1.addConstraint(Sketcher.Constraint("Horizontal", 4))
sketch1.addConstraint(Sketcher.Constraint("Vertical", 6))
sketch1.addConstraint(Sketcher.Constraint("Horizontal", 8))
sketch1.addConstraint(Sketcher.Constraint("Vertical", 10))
sketch1.addConstraint(Sketcher.Constraint("Horizontal", 12))
sketch1.addConstraint(Sketcher.Constraint("Vertical", 14))
sketch1.addConstraint(Sketcher.Constraint("Vertical", 18))
sketch1.addConstraint(Sketcher.Constraint("Horizontal", 20))
sketch1.addConstraint(Sketcher.Constraint("Vertical", 22))
sketch1.addConstraint(Sketcher.Constraint("Vertical", 26))
sketch1.addConstraint(Sketcher.Constraint("Horizontal", 28))
sketch1.addConstraint(Sketcher.Constraint("Vertical", 30))
sketch1.addConstraint(Sketcher.Constraint("Horizontal", 32))
sketch1.addConstraint(Sketcher.Constraint("Vertical", 34))
sketch1.addConstraint(Sketcher.Constraint("Horizontal", 36))
sketch1.addConstraint(Sketcher.Constraint("Vertical", 40))
sketch1.addConstraint(Sketcher.Constraint("Vertical", 44))
sketch1.addConstraint(Sketcher.Constraint("Vertical", 48))
sketch1.addConstraint(Sketcher.Constraint("Horizontal", 50))
sketch1.addConstraint(Sketcher.Constraint("Vertical", 52))
sketch1.addConstraint(Sketcher.Constraint("Vertical", 56))
sketch1.addConstraint(Sketcher.Constraint("Equal", 1, 3))
sketch1.addConstraint(Sketcher.Constraint("Equal", 5, 7))
sketch1.addConstraint(Sketcher.Constraint("Equal", 7, 9))
sketch1.addConstraint(Sketcher.Constraint("Equal", 9, 11))
sketch1.addConstraint(Sketcher.Constraint("Equal", 11, 15))
sketch1.addConstraint(Sketcher.Constraint("Equal", 3, 17))
sketch1.addConstraint(Sketcher.Constraint("Equal", 15, 19))
sketch1.addConstraint(Sketcher.Constraint("Equal", 19, 21))
sketch1.addConstraint(Sketcher.Constraint("Equal", 17, 23))
sketch1.addConstraint(Sketcher.Constraint("Equal", 21, 25))
sketch1.addConstraint(Sketcher.Constraint("Equal", 13, 27))
sketch1.addConstraint(Sketcher.Constraint("Equal", 25, 29))
sketch1.addConstraint(Sketcher.Constraint("Equal", 29, 31))
sketch1.addConstraint(Sketcher.Constraint("Equal", 31, 33))
sketch1.addConstraint(Sketcher.Constraint("Equal", 33, 35))
sketch1.addConstraint(Sketcher.Constraint("Equal", 23, 37))
sketch1.addConstraint(Sketcher.Constraint("Equal", 37, 39))
sketch1.addConstraint(Sketcher.Constraint("Equal", 35, 41))
sketch1.addConstraint(Sketcher.Constraint("Equal", 41, 45))
sketch1.addConstraint(Sketcher.Constraint("Equal", 45, 49))
sketch1.addConstraint(Sketcher.Constraint("Equal", 49, 51))
sketch1.addConstraint(Sketcher.Constraint("Equal", 47, 53))
sketch1.addConstraint(Sketcher.Constraint("Equal", 51, 55))
sketch1.addConstraint(Sketcher.Constraint("Equal", 43, 57))
sketch1.addConstraint(Sketcher.Constraint("Equal", 55, 59))
sketch1.addConstraint(Sketcher.Constraint("Equal", 60, 61))
sketch1.addConstraint(Sketcher.Constraint("Equal", 61, 62))
sketch1.addConstraint(Sketcher.Constraint("Equal", 62, 63))
sketch1.addConstraint(Sketcher.Constraint("Equal", 63, 64))
sketch1.addConstraint(Sketcher.Constraint("Equal", 64, 65))
sketch1.addConstraint(Sketcher.Constraint("Equal", 65, 66))
sketch1.addConstraint(Sketcher.Constraint("Equal", 66, 67))
sketch1.addConstraint(Sketcher.Constraint("Equal", 67, 68))
sketch1.addConstraint(Sketcher.Constraint("Equal", 68, 69))
sketch1.addConstraint(Sketcher.Constraint("Equal", 69, 70))
sketch1.addConstraint(Sketcher.Constraint("Equal", 70, 71))
sketch1.addConstraint(Sketcher.Constraint("Equal", 71, 72))
sketch1.addConstraint(Sketcher.Constraint("Equal", 72, 73))
sketch1.addConstraint(Sketcher.Constraint("Equal", 73, 74))
sketch1.addConstraint(Sketcher.Constraint("Equal", 74, 75))
sketch1.addConstraint(Sketcher.Constraint("Equal", 75, 76))
sketch1.addConstraint(Sketcher.Constraint("Equal", 76, 77))
sketch1.addConstraint(Sketcher.Constraint("Equal", 77, 78))
sketch1.addConstraint(Sketcher.Constraint("Equal", 78, 79))
sketch1.addConstraint(Sketcher.Constraint("Equal", 79, 80))
sketch1.addConstraint(Sketcher.Constraint("Equal", 80, 81))
sketch1.addConstraint(Sketcher.Constraint("Perpendicular", 16, 24))
sketch1.addConstraint(Sketcher.Constraint("Perpendicular", 24, 42))
sketch1.addConstraint(Sketcher.Constraint("Perpendicular", 42, 58))
sketch1.addConstraint(Sketcher.Constraint("Horizontal", 17, 3, 23, 3))
sketch1.addConstraint(Sketcher.Constraint("Horizontal", 15, 3, 25, 3))
sketch1.addConstraint(Sketcher.Constraint("Horizontal", 13, 3, 27, 3))
sketch1.addConstraint(Sketcher.Constraint("Horizontal", 9, 3, 31, 3))
sketch1.addConstraint(Sketcher.Constraint("Horizontal", 5, 3, 35, 3))
sketch1.addConstraint(Sketcher.Constraint("Horizontal", 1, 3, 39, 3))
sketch1.addConstraint(Sketcher.Constraint("Horizontal", 47, 3, 53, 3))
sketch1.addConstraint(Sketcher.Constraint("Horizontal", 45, 3, 55, 3))
sketch1.addConstraint(Sketcher.Constraint("Horizontal", 43, 3, 57, 3))
sketch1.addConstraint(Sketcher.Constraint("Horizontal", 41, 3, 59, 3))
sketch1.addConstraint(Sketcher.Constraint("Horizontal", 63, 3, 64, 3))
sketch1.addConstraint(Sketcher.Constraint("Horizontal", 61, 3, 65, 3))
sketch1.addConstraint(Sketcher.Constraint("Horizontal", 60, 3, 66, 3))
sketch1.addConstraint(Sketcher.Constraint("Horizontal", 62, 3, 67, 3))
sketch1.addConstraint(Sketcher.Constraint("Horizontal", 64, 3, 68, 3))
sketch1.addConstraint(Sketcher.Constraint("Horizontal", 68, 3, 69, 3))
sketch1.addConstraint(Sketcher.Constraint("Horizontal", 71, 3, 76, 3))
sketch1.addConstraint(Sketcher.Constraint("Horizontal", 70, 3, 77, 3))
sketch1.addConstraint(Sketcher.Constraint("Horizontal", 74, 3, 78, 3))
sketch1.addConstraint(Sketcher.Constraint("Horizontal", 75, 3, 79, 3))
sketch1.addConstraint(Sketcher.Constraint("Horizontal", 73, 3, 80, 3))
sketch1.addConstraint(Sketcher.Constraint("Horizontal", 72, 3, 81, 3))
sketch1.addConstraint(Sketcher.Constraint("Horizontal", 16, 2, 23, 2))
sketch1.addConstraint(Sketcher.Constraint("Horizontal", 2, 2, 37, 1))
sketch1.addConstraint(Sketcher.Constraint("Horizontal", 46, 2, 53, 2))
sketch1.addConstraint(Sketcher.Constraint("Vertical", 9, 3, 19, 3))
sketch1.addConstraint(Sketcher.Constraint("Vertical", 21, 3, 31, 3))
sketch1.addConstraint(Sketcher.Constraint("Vertical", 23, 3, 47, 3))
sketch1.addConstraint(Sketcher.Constraint("Vertical", 17, 3, 53, 3))
sketch1.addConstraint(Sketcher.Constraint("Vertical", 1, 3, 63, 3))
sketch1.addConstraint(Sketcher.Constraint("Vertical", 39, 3, 69, 3))
sketch1.addConstraint(Sketcher.Constraint("Vertical", 63, 3, 70, 3))
sketch1.addConstraint(Sketcher.Constraint("Vertical", 70, 3, 72, 3))
sketch1.addConstraint(Sketcher.Constraint("Vertical", 71, 3, 74, 3))
sketch1.addConstraint(Sketcher.Constraint("Vertical", 74, 3, 75, 3))
sketch1.addConstraint(Sketcher.Constraint("Vertical", 69, 3, 77, 3))
sketch1.addConstraint(Sketcher.Constraint("Vertical", 76, 3, 78, 3))
sketch1.addConstraint(Sketcher.Constraint("Vertical", 78, 3, 79, 3))
sketch1.addConstraint(Sketcher.Constraint("Vertical", 77, 3, 81, 3))
sketch1.addConstraint(Sketcher.Constraint("Vertical", 43, 3, 42, 2))
sketch1.addConstraint(Sketcher.Constraint("Vertical", 42, 2, 43, 2))
sketch1.addConstraint(Sketcher.Constraint("Vertical", 34, 2, 47, 2))
sketch1.addConstraint(Sketcher.Constraint("Vertical", 6, 2, 51, 1))
sketch1.addConstraint(Sketcher.Constraint("Vertical", 57, 3, 55, 1))
sketch1.addConstraint(Sketcher.Constraint("Vertical", 56, 2, 57, 2))
sketch1.addConstraint(Sketcher.Constraint("Equal", 32, 6))
sketch1.addConstraint(Sketcher.Constraint("Radius", 1, 2.0))
sketch1.addConstraint(Sketcher.Constraint("Radius", 5, 1.0))
sketch1.addConstraint(Sketcher.Constraint("Radius", 47, 5.0))
sketch1.addConstraint(Sketcher.Constraint("Diameter", 60, 2.5))
sketch1.addConstraint(Sketcher.Constraint("Radius", 13, 0.5))
sketch1.addConstraint(Sketcher.Constraint("DistanceX", 20, 2, 20, 1, 34.0))
sketch1.addConstraint(Sketcher.Constraint("DistanceX", 12, 1, 12, 2, 2.5))
sketch1.addConstraint(Sketcher.Constraint("DistanceX", -1, 1, 1, 3, 42.0))
sketch1.addConstraint(Sketcher.Constraint("DistanceY", -1, 1, 3, 3, 25.0))
sketch1.addConstraint(Sketcher.Constraint("DistanceY", 19, 3, -1, 1, 15.0))
sketch1.addConstraint(Sketcher.Constraint("DistanceY", -1, 1, 49, 3, 258.0))
sketch1.addConstraint(Sketcher.Constraint("DistanceX", -1, 1, 55, 3, 25.0))
sketch1.addConstraint(Sketcher.Constraint("DistanceX", -1, 1, 60, 3, 13.0))
sketch1.addConstraint(Sketcher.Constraint("DistanceY", -1, 1, 60, 3, 240.0))
sketch1.addConstraint(Sketcher.Constraint("DistanceX", -1, 1, 61, 3, 4.0))
sketch1.addConstraint(Sketcher.Constraint("DistanceY", -1, 1, 61, 3, 256.0))
sketch1.addConstraint(Sketcher.Constraint("DistanceX", -1, 1, 62, 3, 15.0))
sketch1.addConstraint(Sketcher.Constraint("DistanceY", -1, 1, 62, 3, 204.0))
sketch1.addConstraint(Sketcher.Constraint("DistanceY", -1, 1, 63, 3, 200.0))
sketch1.addConstraint(Sketcher.Constraint("DistanceY", -1, 1, 70, 3, 122.0))
sketch1.addConstraint(Sketcher.Constraint("DistanceX", -1, 1, 71, 3, 21.0))
sketch1.addConstraint(Sketcher.Constraint("DistanceY", -1, 1, 71, 3, 100.0))
sketch1.addConstraint(Sketcher.Constraint("DistanceY", -1, 1, 72, 3, 40.0))
sketch1.addConstraint(Sketcher.Constraint("DistanceX", -1, 1, 73, 3, 39.0))
sketch1.addConstraint(Sketcher.Constraint("DistanceY", -1, 1, 73, 3, 39.0))
sketch1.addConstraint(Sketcher.Constraint("DistanceY", -1, 1, 74, 3, 80.0))
sketch1.addConstraint(Sketcher.Constraint("DistanceY", -1, 1, 75, 3, 35.0))
sketch1.addConstraint(Sketcher.Constraint("DistanceY", -1, 1, 42, 2, 219.0))
sketch1.addConstraint(Sketcher.Constraint("Radius", 43, 1.894777))
sketch1.addConstraint(Sketcher.Constraint("DistanceY", 0, 2, 0, 1, 162.859091))
sketch1.addConstraint(Sketcher.Constraint("DistanceY", 44, 1, 44, 2, 13.007119))
sketch1.addConstraint(Sketcher.Constraint("DistanceY", 48, 1, 48, 2, 12.180739))
sketch1.addConstraint(Sketcher.Constraint("DistanceX", 4, 2, 4, 1, 4.452966))
sketch1.addConstraint(Sketcher.Constraint("DistanceY", 10, 2, 10, 1, 4.492975))
sketch1.addConstraint(Sketcher.Constraint("DistanceY", 14, 2, 14, 1, 1.085786))
sketch1.addConstraint(Sketcher.Constraint("DistanceX", 37, 3, -1, 1, 20.43037))
sketch1.addConstraint(Sketcher.Constraint("DistanceX", -1, 1, 64, 3, 27.091305))
sketch1.addConstraint(Sketcher.Constraint("DistanceX", 65, 3, -1, 1, 3.954807))
sketch1.addConstraint(Sketcher.Constraint("DistanceX", 66, 3, -1, 1, 12.954807))
sketch1.addConstraint(Sketcher.Constraint("DistanceX", 67, 3, -1, 1, 14.954807))
sketch1.addConstraint(Sketcher.Constraint("DistanceX", 68, 3, -1, 1, 27.046112))
sketch1.addConstraint(Sketcher.Constraint("DistanceX", 76, 3, -1, 1, 20.954807))
sketch1.addConstraint(Sketcher.Constraint("DistanceX", 80, 3, -1, 1, 38.954807))
sketch1.setExpression("Constraints[177]", "Params.sketch1_radius")
sketch1.setExpression("Constraints[178]", "Params.sketch1_radius2")
sketch1.setExpression("Constraints[179]", "Params.sketch1_radius3")
sketch1.setExpression("Constraints[180]", "Params.sketch1_diameter")
sketch1.setExpression("Constraints[181]", "Params.sketch1_radius4")
pad1 = body.newObject("PartDesign::Pad", "Pad")
pad1.Profile = sketch1
pad1.setExpression("Length", "Params.pad1_length")
pad1.Reversed = True

doc.recompute()
